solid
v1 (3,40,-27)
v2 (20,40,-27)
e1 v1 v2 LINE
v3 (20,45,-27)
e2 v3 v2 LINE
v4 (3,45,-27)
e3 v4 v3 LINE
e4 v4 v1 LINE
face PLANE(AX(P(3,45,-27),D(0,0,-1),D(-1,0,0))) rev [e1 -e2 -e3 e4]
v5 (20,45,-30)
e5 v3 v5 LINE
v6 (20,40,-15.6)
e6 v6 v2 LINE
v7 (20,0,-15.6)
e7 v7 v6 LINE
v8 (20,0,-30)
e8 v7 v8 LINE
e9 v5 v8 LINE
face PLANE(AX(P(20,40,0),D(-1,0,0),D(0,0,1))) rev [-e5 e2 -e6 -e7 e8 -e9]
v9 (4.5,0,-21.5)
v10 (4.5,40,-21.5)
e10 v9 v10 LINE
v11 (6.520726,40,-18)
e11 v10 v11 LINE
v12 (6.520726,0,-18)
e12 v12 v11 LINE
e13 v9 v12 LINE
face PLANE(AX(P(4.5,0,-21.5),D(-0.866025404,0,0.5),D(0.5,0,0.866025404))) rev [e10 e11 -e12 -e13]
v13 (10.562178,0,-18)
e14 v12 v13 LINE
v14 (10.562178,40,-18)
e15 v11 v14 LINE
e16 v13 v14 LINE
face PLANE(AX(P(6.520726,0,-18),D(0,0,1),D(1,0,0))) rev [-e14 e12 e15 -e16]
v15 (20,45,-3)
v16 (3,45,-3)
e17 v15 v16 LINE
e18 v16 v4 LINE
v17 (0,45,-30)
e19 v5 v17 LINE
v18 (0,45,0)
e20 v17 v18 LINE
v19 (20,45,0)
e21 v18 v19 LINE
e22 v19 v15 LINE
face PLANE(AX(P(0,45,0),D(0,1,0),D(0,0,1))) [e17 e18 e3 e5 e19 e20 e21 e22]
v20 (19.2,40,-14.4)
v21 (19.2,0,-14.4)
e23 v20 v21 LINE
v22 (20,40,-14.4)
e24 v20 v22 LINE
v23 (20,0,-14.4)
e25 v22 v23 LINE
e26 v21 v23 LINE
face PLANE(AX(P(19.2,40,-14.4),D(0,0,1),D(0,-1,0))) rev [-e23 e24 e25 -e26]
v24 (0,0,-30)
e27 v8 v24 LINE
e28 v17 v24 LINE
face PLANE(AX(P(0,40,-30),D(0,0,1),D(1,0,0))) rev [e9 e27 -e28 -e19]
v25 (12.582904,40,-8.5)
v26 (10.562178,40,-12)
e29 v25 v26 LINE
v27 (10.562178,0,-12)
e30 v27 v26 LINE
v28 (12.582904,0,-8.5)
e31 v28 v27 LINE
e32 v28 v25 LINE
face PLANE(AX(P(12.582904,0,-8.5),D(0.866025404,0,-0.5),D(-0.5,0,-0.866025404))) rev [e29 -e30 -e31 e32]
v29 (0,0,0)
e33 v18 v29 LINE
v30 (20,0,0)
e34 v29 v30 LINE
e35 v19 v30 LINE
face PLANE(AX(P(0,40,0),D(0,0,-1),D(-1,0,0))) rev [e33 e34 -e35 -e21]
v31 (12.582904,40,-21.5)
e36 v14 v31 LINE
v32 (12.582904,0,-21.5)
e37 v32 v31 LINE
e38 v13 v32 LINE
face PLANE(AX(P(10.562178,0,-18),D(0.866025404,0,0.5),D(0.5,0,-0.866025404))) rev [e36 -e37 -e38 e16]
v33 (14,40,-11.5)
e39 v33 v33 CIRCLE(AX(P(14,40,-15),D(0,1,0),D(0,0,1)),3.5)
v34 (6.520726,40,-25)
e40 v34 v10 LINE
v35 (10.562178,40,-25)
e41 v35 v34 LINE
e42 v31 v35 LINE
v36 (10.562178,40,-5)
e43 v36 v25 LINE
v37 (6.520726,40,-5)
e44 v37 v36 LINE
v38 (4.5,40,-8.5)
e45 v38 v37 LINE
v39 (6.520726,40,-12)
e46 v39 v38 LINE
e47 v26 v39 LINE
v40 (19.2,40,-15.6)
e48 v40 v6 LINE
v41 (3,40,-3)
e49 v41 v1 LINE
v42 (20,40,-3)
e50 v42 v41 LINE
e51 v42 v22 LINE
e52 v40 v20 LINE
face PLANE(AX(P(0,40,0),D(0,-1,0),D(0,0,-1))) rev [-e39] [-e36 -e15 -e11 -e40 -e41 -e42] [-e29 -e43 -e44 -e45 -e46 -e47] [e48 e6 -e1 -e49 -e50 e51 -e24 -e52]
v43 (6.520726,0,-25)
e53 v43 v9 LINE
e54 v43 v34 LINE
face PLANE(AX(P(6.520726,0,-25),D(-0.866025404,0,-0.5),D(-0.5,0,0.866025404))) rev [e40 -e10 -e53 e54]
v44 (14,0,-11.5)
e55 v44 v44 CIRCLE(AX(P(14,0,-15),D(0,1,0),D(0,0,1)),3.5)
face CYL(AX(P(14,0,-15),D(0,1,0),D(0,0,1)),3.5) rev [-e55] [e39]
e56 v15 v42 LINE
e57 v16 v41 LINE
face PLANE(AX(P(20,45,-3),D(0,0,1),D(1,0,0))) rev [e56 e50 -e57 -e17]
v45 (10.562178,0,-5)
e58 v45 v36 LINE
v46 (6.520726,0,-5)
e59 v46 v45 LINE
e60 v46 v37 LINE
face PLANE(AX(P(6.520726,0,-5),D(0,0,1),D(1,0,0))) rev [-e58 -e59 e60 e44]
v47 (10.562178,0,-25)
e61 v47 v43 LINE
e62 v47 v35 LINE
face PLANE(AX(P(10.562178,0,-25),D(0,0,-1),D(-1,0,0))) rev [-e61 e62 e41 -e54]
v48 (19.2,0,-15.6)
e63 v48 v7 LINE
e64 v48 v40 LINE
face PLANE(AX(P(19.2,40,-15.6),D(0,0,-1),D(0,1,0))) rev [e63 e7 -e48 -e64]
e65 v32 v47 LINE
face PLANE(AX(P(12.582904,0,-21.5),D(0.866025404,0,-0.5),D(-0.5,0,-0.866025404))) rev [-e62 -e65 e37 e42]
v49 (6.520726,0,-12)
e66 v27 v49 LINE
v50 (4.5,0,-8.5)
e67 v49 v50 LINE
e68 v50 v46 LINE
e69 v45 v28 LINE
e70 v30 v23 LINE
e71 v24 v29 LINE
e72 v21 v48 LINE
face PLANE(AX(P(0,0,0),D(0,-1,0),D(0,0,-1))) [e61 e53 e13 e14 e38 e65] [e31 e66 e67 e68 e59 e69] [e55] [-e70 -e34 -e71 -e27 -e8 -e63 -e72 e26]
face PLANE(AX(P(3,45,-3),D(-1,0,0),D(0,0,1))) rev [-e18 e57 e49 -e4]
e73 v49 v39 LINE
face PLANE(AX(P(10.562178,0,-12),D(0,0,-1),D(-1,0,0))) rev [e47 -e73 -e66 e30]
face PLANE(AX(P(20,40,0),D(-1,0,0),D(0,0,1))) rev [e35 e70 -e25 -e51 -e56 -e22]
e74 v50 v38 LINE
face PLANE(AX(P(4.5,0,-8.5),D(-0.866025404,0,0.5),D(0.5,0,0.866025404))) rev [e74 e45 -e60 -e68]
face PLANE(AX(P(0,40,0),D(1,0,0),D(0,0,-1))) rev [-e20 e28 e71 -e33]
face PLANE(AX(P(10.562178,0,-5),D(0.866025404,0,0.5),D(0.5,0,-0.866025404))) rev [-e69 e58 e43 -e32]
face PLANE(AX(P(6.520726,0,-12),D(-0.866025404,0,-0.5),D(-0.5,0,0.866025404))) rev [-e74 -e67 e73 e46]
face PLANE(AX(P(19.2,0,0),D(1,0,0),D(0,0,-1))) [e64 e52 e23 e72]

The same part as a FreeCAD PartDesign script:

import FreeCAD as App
import Part
import Sketcher
Q = App.Units.Quantity

doc = App.newDocument("Part")
body = doc.addObject("PartDesign::Body", "Body")

# Sketch on XZ plane
sketch1 = body.newObject("Sketcher::SketchObject", "Sketch")
sketch1.AttachmentSupport = (doc.getObject("XZ_Plane"), [""])
sketch1.MapMode = "FlatFace"
sketch1.addGeometry(Part.LineSegment(App.Vector(0, -30, 0), App.Vector(0, 0, 0)), False)
sketch1.addGeometry(Part.LineSegment(App.Vector(0, 0, 0), App.Vector(20, 0, 0)), False)
sketch1.addGeometry(Part.LineSegment(App.Vector(20, 0, 0), App.Vector(20, -30, 0)), False)
sketch1.addGeometry(Part.LineSegment(App.Vector(20, -30, 0), App.Vector(0, -30, 0)), False)
sketch1.addConstraint(Sketcher.Constraint("Coincident", 0, 2, 1, 1))
sketch1.addConstraint(Sketcher.Constraint("Coincident", 1, 2, 2, 1))
sketch1.addConstraint(Sketcher.Constraint("Coincident", 2, 2, 3, 1))
sketch1.addConstraint(Sketcher.Constraint("Coincident", 3, 2, 0, 1))
sketch1.addConstraint(Sketcher.Constraint("Vertical", 0))
sketch1.addConstraint(Sketcher.Constraint("Horizontal", 1))
sketch1.addConstraint(Sketcher.Constraint("Vertical", 2))
sketch1.addConstraint(Sketcher.Constraint("Horizontal", 3))
sketch1.addConstraint(Sketcher.Constraint("Coincident", 0, 2, -1, 1))
sketch1.addConstraint(Sketcher.Constraint("DistanceX", 1, 1, 1, 2, Q("20 mm")))
sketch1.addConstraint(Sketcher.Constraint("DistanceY", 0, 1, 0, 2, Q("30 mm")))
pad1 = body.newObject("PartDesign::Pad", "Pad")
pad1.Profile = sketch1
pad1.Length = 40
pad1.Reversed = True

# Sketch on XZ plane
sketch2 = body.newObject("Sketcher::SketchObject", "Sketch001")
sketch2.AttachmentSupport = (doc.getObject("XZ_Plane"), [""])
sketch2.MapMode = "FlatFace"
sketch2.AttachmentOffset = App.Placement(App.Vector(0, 0, -40), App.Rotation())
sketch2.addGeometry(Part.LineSegment(App.Vector(20, 0, 0), App.Vector(20, -3, 0)), False)
sketch2.addGeometry(Part.LineSegment(App.Vector(20, -3, 0), App.Vector(3, -3, 0)), False)
sketch2.addGeometry(Part.LineSegment(App.Vector(3, -3, 0), App.Vector(3, -27, 0)), False)
sketch2.addGeometry(Part.LineSegment(App.Vector(3, -27, 0), App.Vector(20, -27, 0)), False)
sketch2.addGeometry(Part.LineSegment(App.Vector(20, -27, 0), App.Vector(20, -30, 0)), False)
sketch2.addGeometry(Part.LineSegment(App.Vector(20, -30, 0), App.Vector(0, -30, 0)), False)
sketch2.addGeometry(Part.LineSegment(App.Vector(0, -30, 0), App.Vector(0, 0, 0)), False)
sketch2.addGeometry(Part.LineSegment(App.Vector(0, 0, 0), App.Vector(20, 0, 0)), False)
sketch2.addConstraint(Sketcher.Constraint("Coincident", 0, 2, 1, 1))
sketch2.addConstraint(Sketcher.Constraint("Coincident", 1, 2, 2, 1))
sketch2.addConstraint(Sketcher.Constraint("Coincident", 2, 2, 3, 1))
sketch2.addConstraint(Sketcher.Constraint("Coincident", 3, 2, 4, 1))
sketch2.addConstraint(Sketcher.Constraint("Coincident", 4, 2, 5, 1))
sketch2.addConstraint(Sketcher.Constraint("Coincident", 5, 2, 6, 1))
sketch2.addConstraint(Sketcher.Constraint("Coincident", 6, 2, 7, 1))
sketch2.addConstraint(Sketcher.Constraint("Coincident", 7, 2, 0, 1))
sketch2.addConstraint(Sketcher.Constraint("Vertical", 0))
sketch2.addConstraint(Sketcher.Constraint("Horizontal", 1))
sketch2.addConstraint(Sketcher.Constraint("Vertical", 2))
sketch2.addConstraint(Sketcher.Constraint("Horizontal", 3))
sketch2.addConstraint(Sketcher.Constraint("Vertical", 4))
sketch2.addConstraint(Sketcher.Constraint("Horizontal", 5))
sketch2.addConstraint(Sketcher.Constraint("Vertical", 6))
sketch2.addConstraint(Sketcher.Constraint("Horizontal", 7))
sketch2.addConstraint(Sketcher.Constraint("Coincident", 6, 2, -1, 1))
sketch2.addConstraint(Sketcher.Constraint("Vertical", 0, 2, 3, 2))
sketch2.addConstraint(Sketcher.Constraint("Equal", 0, 4))
sketch2.addConstraint(Sketcher.Constraint("DistanceX", 1, 2, 1, 1, Q("17 mm")))
sketch2.addConstraint(Sketcher.Constraint("DistanceX", 5, 2, 5, 1, Q("20 mm")))
sketch2.addConstraint(Sketcher.Constraint("DistanceY", 0, 2, 0, 1, Q("3 mm")))
sketch2.addConstraint(Sketcher.Constraint("DistanceY", 2, 2, 2, 1, Q("24 mm")))
pad2 = body.newObject("PartDesign::Pad", "Pad001")
pad2.Profile = sketch2
pad2.Length = 5
pad2.Reversed = True

# Sketch on XZ plane
sketch3 = body.newObject("Sketcher::SketchObject", "Sketch002")
sketch3.AttachmentSupport = (doc.getObject("XZ_Plane"), [""])
sketch3.MapMode = "FlatFace"
sketch3.AttachmentOffset = App.Placement(App.Vector(0, 0, -40), App.Rotation())
sketch3.addGeometry(Part.Circle(App.Vector(14, -15, 0), App.Vector(0, 0, 1), 3.5), False)
sketch3.addGeometry(Part.LineSegment(App.Vector(12.6, -8.5, 0), App.Vector(10.6, -12, 0)), False)
sketch3.addGeometry(Part.LineSegment(App.Vector(10.6, -12, 0), App.Vector(6.5, -12, 0)), False)
sketch3.addGeometry(Part.LineSegment(App.Vector(6.5, -12, 0), App.Vector(4.5, -8.5, 0)), False)
sketch3.addGeometry(Part.LineSegment(App.Vector(4.5, -8.5, 0), App.Vector(6.5, -5, 0)), False)
sketch3.addGeometry(Part.LineSegment(App.Vector(6.5, -5, 0), App.Vector(10.6, -5, 0)), False)
sketch3.addGeometry(Part.LineSegment(App.Vector(10.6, -5, 0), App.Vector(12.6, -8.5, 0)), False)
sketch3.addGeometry(Part.LineSegment(App.Vector(12.6, -21.5, 0), App.Vector(10.6, -25, 0)), False)
sketch3.addGeometry(Part.LineSegment(App.Vector(10.6, -25, 0), App.Vector(6.5, -25, 0)), False)
sketch3.addGeometry(Part.LineSegment(App.Vector(6.5, -25, 0), App.Vector(4.5, -21.5, 0)), False)
sketch3.addGeometry(Part.LineSegment(App.Vector(4.5, -21.5, 0), App.Vector(6.5, -18, 0)), False)
sketch3.addGeometry(Part.LineSegment(App.Vector(6.5, -18, 0), App.Vector(10.6, -18, 0)), False)
sketch3.addGeometry(Part.LineSegment(App.Vector(10.6, -18, 0), App.Vector(12.6, -21.5, 0)), False)
sketch3.addConstraint(Sketcher.Constraint("Coincident", 1, 2, 2, 1))
sketch3.addConstraint(Sketcher.Constraint("Coincident", 2, 2, 3, 1))
sketch3.addConstraint(Sketcher.Constraint("Coincident", 3, 2, 4, 1))
sketch3.addConstraint(Sketcher.Constraint("Coincident", 4, 2, 5, 1))
sketch3.addConstraint(Sketcher.Constraint("Coincident", 5, 2, 6, 1))
sketch3.addConstraint(Sketcher.Constraint("Coincident", 6, 2, 1, 1))
sketch3.addConstraint(Sketcher.Constraint("Coincident", 7, 2, 8, 1))
sketch3.addConstraint(Sketcher.Constraint("Coincident", 8, 2, 9, 1))
sketch3.addConstraint(Sketcher.Constraint("Coincident", 9, 2, 10, 1))
sketch3.addConstraint(Sketcher.Constraint("Coincident", 10, 2, 11, 1))
sketch3.addConstraint(Sketcher.Constraint("Coincident", 11, 2, 12, 1))
sketch3.addConstraint(Sketcher.Constraint("Coincident", 12, 2, 7, 1))
sketch3.addConstraint(Sketcher.Constraint("Horizontal", 2))
sketch3.addConstraint(Sketcher.Constraint("Horizontal", 5))
sketch3.addConstraint(Sketcher.Constraint("Horizontal", 8))
sketch3.addConstraint(Sketcher.Constraint("Horizontal", 11))
sketch3.addConstraint(Sketcher.Constraint("Parallel", 1, 4))
sketch3.addConstraint(Sketcher.Constraint("Parallel", 3, 6))
sketch3.addConstraint(Sketcher.Constraint("Parallel", 4, 7))
sketch3.addConstraint(Sketcher.Constraint("Parallel", 6, 9))
sketch3.addConstraint(Sketcher.Constraint("Parallel", 7, 10))
sketch3.addConstraint(Sketcher.Constraint("Parallel", 9, 12))
sketch3.addConstraint(Sketcher.Constraint("Horizontal", 3, 2, 6, 2))
sketch3.addConstraint(Sketcher.Constraint("Horizontal", 9, 2, 12, 2))
sketch3.addConstraint(Sketcher.Constraint("Vertical", 2, 2, 4, 2))
sketch3.addConstraint(Sketcher.Constraint("Vertical", 1, 2, 5, 2))
sketch3.addConstraint(Sketcher.Constraint("Vertical", 5, 2, 7, 2))
sketch3.addConstraint(Sketcher.Constraint("Vertical", 4, 2, 8, 2))
sketch3.addConstraint(Sketcher.Constraint("Vertical", 3, 2, 9, 2))
sketch3.addConstraint(Sketcher.Constraint("Vertical", 8, 2, 10, 2))
sketch3.addConstraint(Sketcher.Constraint("Diameter", 0, Q("7 mm")))
sketch3.addConstraint(Sketcher.Constraint("Angle", 1, Q("-120 deg")))
sketch3.addConstraint(Sketcher.Constraint("DistanceX", -1, 1, 0, 3, Q("14 mm")))
sketch3.addConstraint(Sketcher.Constraint("DistanceY", 0, 3, -1, 1, Q("15 mm")))
sketch3.addConstraint(Sketcher.Constraint("DistanceY", 1, 2, -1, 1, Q("12 mm")))
sketch3.addConstraint(Sketcher.Constraint("DistanceY", 4, 2, -1, 1, Q("5 mm")))
sketch3.addConstraint(Sketcher.Constraint("DistanceY", 7, 2, -1, 1, Q("25 mm")))
sketch3.addConstraint(Sketcher.Constraint("DistanceX", -1, 1, 3, 2, Q("4.5 mm")))
sketch3.addConstraint(Sketcher.Constraint("DistanceX", 2, 2, 2, 1, Q("4.041452 mm")))
pocket1 = body.newObject("PartDesign::Pocket", "Pocket")
pocket1.Profile = sketch3
pocket1.Type = "ThroughAll"
pocket1.Reversed = True

# Sketch on YZ plane
sketch4 = body.newObject("Sketcher::SketchObject", "Sketch003")
sketch4.AttachmentSupport = (doc.getObject("YZ_Plane"), [""])
sketch4.MapMode = "FlatFace"
sketch4.AttachmentOffset = App.Placement(App.Vector(0, 0, 20), App.Rotation())
sketch4.addGeometry(Part.LineSegment(App.Vector(40, -14.4, 0), App.Vector(0, -14.4, 0)), False)
sketch4.addGeometry(Part.LineSegment(App.Vector(0, -14.4, 0), App.Vector(0, -15.6, 0)), False)
sketch4.addGeometry(Part.LineSegment(App.Vector(0, -15.6, 0), App.Vector(40, -15.6, 0)), False)
sketch4.addGeometry(Part.LineSegment(App.Vector(40, -15.6, 0), App.Vector(40, -14.4, 0)), False)
sketch4.addConstraint(Sketcher.Constraint("Coincident", 0, 2, 1, 1))
sketch4.addConstraint(Sketcher.Constraint("Coincident", 1, 2, 2, 1))
sketch4.addConstraint(Sketcher.Constraint("Coincident", 2, 2, 3, 1))
sketch4.addConstraint(Sketcher.Constraint("Coincident", 3, 2, 0, 1))
sketch4.addConstraint(Sketcher.Constraint("Horizontal", 0))
sketch4.addConstraint(Sketcher.Constraint("Vertical", 1))
sketch4.addConstraint(Sketcher.Constraint("Horizontal", 2))
sketch4.addConstraint(Sketcher.Constraint("Vertical", 3))
sketch4.addConstraint(Sketcher.Constraint("PointOnObject", 0, 2, -2))
sketch4.addConstraint(Sketcher.Constraint("DistanceX", 0, 2, 0, 1, Q("40 mm")))
sketch4.addConstraint(Sketcher.Constraint("DistanceY", 1, 2, 1, 1, Q("1.2 mm")))
sketch4.addConstraint(Sketcher.Constraint("DistanceY", 0, 2, -1, 1, Q("14.4 mm")))
pocket2 = body.newObject("PartDesign::Pocket", "Pocket001")
pocket2.Profile = sketch4
pocket2.Length = 0.8

doc.recompute()
